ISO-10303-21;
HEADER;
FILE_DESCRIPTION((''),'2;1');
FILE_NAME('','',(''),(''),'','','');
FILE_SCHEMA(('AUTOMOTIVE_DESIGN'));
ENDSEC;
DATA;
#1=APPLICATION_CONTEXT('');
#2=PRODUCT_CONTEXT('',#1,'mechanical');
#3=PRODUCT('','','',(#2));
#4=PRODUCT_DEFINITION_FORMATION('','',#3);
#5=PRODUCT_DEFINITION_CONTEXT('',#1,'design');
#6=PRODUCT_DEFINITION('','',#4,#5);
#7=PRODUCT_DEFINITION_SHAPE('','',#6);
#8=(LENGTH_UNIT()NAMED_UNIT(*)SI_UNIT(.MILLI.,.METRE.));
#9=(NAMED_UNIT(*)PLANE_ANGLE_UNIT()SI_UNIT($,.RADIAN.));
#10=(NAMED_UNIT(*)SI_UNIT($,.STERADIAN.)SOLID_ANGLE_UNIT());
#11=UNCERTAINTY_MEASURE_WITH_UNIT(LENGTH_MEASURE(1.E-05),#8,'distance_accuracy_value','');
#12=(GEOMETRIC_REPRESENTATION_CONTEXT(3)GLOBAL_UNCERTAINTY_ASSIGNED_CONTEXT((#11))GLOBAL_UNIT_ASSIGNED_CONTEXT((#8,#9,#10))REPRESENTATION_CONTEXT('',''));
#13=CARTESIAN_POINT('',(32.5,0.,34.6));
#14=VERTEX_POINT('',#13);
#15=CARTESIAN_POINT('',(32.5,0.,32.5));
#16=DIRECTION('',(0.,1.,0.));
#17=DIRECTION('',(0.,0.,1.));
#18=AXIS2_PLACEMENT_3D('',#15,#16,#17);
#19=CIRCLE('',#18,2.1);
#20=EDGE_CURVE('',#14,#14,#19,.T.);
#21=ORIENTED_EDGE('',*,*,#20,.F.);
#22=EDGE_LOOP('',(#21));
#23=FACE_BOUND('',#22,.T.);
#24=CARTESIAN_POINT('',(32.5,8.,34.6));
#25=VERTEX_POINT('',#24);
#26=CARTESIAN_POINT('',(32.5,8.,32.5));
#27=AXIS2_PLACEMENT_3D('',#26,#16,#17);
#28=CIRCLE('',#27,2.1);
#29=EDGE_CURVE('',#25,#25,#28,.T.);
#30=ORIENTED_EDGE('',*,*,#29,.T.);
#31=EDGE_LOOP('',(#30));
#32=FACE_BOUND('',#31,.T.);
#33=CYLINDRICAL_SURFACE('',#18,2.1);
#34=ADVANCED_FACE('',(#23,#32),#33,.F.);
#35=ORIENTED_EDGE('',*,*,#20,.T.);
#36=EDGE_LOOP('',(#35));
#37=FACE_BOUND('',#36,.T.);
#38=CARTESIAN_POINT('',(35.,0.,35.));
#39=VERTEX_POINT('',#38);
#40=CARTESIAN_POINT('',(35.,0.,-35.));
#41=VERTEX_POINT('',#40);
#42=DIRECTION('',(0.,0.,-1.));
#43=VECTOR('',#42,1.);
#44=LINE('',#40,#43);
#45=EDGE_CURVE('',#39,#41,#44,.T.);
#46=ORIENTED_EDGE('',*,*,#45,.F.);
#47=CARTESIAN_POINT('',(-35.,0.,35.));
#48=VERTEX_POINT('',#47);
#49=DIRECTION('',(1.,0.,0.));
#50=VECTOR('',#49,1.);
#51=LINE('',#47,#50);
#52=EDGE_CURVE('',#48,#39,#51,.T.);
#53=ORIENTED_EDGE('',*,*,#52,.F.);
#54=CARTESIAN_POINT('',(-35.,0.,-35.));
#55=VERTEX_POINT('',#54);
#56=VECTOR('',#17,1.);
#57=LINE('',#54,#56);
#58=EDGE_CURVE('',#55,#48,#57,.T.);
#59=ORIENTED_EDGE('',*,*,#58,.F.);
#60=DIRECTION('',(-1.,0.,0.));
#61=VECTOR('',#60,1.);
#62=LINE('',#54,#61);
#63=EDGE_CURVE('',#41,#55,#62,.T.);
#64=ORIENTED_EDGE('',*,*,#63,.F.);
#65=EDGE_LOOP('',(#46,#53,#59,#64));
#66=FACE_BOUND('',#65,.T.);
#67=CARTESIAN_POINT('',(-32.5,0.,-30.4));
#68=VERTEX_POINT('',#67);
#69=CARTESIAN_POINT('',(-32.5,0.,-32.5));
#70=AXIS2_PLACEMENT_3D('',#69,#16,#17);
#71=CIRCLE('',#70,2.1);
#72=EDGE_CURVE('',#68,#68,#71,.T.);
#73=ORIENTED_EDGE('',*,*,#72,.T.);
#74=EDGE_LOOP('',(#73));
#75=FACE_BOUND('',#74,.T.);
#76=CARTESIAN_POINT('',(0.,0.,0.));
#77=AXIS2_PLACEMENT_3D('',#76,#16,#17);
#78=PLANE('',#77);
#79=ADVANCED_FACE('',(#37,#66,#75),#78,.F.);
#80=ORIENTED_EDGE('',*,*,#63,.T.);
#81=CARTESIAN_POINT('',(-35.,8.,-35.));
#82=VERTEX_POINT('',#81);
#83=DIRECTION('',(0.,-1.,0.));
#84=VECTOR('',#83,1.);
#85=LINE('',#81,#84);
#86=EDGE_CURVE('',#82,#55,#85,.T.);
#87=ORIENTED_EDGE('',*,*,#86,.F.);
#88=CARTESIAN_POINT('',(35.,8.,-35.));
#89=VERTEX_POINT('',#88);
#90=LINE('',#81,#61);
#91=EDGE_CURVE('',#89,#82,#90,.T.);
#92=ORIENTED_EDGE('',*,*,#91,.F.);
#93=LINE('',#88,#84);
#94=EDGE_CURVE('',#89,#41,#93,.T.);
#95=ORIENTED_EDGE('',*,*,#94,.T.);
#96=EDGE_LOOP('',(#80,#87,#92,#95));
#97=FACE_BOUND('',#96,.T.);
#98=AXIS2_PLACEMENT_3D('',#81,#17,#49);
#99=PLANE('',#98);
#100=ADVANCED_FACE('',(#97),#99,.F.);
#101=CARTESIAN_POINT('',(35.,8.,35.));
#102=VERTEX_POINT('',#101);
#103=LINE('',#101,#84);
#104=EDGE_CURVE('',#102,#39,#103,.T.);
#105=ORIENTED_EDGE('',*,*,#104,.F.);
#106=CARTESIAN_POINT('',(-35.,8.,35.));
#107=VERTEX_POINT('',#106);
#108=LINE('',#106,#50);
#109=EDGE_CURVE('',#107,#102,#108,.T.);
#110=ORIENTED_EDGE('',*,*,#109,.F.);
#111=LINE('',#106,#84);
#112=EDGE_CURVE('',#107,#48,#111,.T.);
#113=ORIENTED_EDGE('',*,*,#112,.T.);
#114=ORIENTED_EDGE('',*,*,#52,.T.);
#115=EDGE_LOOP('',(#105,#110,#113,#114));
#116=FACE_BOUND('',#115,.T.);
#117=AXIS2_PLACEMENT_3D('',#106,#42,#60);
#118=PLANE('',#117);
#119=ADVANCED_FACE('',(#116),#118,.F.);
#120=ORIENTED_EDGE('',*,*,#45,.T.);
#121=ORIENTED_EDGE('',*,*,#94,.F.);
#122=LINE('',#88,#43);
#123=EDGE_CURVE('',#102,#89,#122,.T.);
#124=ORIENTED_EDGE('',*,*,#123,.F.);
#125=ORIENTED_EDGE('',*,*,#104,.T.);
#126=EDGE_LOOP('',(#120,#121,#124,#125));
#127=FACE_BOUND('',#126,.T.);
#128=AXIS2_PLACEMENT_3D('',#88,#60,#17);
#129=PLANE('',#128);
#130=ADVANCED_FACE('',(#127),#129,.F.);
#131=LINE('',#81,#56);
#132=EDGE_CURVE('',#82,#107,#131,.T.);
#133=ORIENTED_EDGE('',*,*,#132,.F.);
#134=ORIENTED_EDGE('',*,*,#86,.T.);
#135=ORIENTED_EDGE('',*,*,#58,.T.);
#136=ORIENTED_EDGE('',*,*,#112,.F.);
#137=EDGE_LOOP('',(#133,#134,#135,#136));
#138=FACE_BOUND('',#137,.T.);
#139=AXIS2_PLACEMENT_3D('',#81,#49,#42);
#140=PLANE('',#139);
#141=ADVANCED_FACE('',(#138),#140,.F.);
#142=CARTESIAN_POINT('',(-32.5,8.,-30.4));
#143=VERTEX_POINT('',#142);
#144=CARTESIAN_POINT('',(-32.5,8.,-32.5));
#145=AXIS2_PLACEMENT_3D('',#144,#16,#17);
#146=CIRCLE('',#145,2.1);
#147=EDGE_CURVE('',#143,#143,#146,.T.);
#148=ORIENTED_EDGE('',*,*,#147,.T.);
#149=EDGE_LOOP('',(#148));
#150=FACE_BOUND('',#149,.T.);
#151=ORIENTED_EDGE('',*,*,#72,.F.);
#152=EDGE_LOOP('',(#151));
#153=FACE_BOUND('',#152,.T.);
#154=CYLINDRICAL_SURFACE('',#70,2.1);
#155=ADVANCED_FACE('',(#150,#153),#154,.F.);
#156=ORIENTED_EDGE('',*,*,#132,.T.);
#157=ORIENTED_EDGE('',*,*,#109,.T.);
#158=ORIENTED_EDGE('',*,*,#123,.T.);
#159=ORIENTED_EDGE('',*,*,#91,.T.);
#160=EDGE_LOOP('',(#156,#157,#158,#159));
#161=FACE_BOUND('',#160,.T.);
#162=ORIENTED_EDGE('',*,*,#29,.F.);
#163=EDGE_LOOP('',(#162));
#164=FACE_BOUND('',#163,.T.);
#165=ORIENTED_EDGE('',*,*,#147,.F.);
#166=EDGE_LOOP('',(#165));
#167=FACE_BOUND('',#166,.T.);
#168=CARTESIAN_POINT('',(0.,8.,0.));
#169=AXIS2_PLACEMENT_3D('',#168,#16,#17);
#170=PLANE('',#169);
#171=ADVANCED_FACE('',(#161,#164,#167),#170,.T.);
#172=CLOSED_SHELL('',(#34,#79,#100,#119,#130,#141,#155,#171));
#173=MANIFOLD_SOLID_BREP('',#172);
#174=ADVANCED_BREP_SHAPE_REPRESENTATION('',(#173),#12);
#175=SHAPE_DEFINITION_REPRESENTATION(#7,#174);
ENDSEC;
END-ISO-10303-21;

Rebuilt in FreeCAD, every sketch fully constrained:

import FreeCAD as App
import Part
import Sketcher
from FreeCAD import Vector

doc = App.newDocument("Part")
body = doc.addObject("PartDesign::Body", "Body")

# Sketch on XZ plane
sketch1 = body.newObject("Sketcher::SketchObject", "Sketch")
sketch1.AttachmentSupport = (doc.getObject("XZ_Plane"), [""])
sketch1.MapMode = "FlatFace"
sketch1.addGeometry([
    Part.LineSegment(Vector(-35, -35, 0), Vector(-35, 35, 0)),
    Part.LineSegment(Vector(-35, 35, 0), Vector(35, 35, 0)),
    Part.LineSegment(Vector(35, 35, 0), Vector(35, -35, 0)),
    Part.LineSegment(Vector(35, -35, 0), Vector(-35, -35, 0)),
], False)
sketch1.addConstraint([
    Sketcher.Constraint("Coincident", 0, 2, 1, 1),
    Sketcher.Constraint("Coincident", 1, 2, 2, 1),
    Sketcher.Constraint("Coincident", 2, 2, 3, 1),
    Sketcher.Constraint("Coincident", 3, 2, 0, 1),
    Sketcher.Constraint("Vertical", 0),
    Sketcher.Constraint("Horizontal", 1),
    Sketcher.Constraint("Vertical", 2),
    Sketcher.Constraint("Horizontal", 3),
    Sketcher.Constraint("Symmetric", 0, 2, 2, 2, -1, 1),
    Sketcher.Constraint("Equal", 3, 0),
    Sketcher.Constraint("DistanceX", 1, 1, 1, 2, 70.0),
])
pad1 = body.newObject("PartDesign::Pad", "Pad")
pad1.Profile = sketch1
pad1.Length = 8
pad1.Reversed = True

# Sketch on XZ plane
sketch2 = body.newObject("Sketcher::SketchObject", "Sketch001")
sketch2.AttachmentSupport = (doc.getObject("XZ_Plane"), [""])
sketch2.MapMode = "FlatFace"
sketch2.AttachmentOffset = App.Placement(Vector(0, 0, -8), App.Rotation())
sketch2.addGeometry([
    Part.Circle(Vector(-32.5, -32.5, 0), Vector(0, 0, 1), 2.1),
    Part.Circle(Vector(32.5, 32.5, 0), Vector(0, 0, 1), 2.1),
], False)
sketch2.addConstraint([
    Sketcher.Constraint("Equal", 0, 1),
    Sketcher.Constraint("Symmetric", 0, 3, 1, 3, -1, 1),
    Sketcher.Constraint("Diameter", 0, 4.2),
    Sketcher.Constraint("DistanceX", 0, 3, 1, 3, 65.0),
    Sketcher.Constraint("DistanceY", 0, 3, 1, 3, 65.0),
])
pocket1 = body.newObject("PartDesign::Pocket", "Pocket")
pocket1.Profile = sketch2
pocket1.Length = 8
pocket1.Reversed = True

doc.recompute()
